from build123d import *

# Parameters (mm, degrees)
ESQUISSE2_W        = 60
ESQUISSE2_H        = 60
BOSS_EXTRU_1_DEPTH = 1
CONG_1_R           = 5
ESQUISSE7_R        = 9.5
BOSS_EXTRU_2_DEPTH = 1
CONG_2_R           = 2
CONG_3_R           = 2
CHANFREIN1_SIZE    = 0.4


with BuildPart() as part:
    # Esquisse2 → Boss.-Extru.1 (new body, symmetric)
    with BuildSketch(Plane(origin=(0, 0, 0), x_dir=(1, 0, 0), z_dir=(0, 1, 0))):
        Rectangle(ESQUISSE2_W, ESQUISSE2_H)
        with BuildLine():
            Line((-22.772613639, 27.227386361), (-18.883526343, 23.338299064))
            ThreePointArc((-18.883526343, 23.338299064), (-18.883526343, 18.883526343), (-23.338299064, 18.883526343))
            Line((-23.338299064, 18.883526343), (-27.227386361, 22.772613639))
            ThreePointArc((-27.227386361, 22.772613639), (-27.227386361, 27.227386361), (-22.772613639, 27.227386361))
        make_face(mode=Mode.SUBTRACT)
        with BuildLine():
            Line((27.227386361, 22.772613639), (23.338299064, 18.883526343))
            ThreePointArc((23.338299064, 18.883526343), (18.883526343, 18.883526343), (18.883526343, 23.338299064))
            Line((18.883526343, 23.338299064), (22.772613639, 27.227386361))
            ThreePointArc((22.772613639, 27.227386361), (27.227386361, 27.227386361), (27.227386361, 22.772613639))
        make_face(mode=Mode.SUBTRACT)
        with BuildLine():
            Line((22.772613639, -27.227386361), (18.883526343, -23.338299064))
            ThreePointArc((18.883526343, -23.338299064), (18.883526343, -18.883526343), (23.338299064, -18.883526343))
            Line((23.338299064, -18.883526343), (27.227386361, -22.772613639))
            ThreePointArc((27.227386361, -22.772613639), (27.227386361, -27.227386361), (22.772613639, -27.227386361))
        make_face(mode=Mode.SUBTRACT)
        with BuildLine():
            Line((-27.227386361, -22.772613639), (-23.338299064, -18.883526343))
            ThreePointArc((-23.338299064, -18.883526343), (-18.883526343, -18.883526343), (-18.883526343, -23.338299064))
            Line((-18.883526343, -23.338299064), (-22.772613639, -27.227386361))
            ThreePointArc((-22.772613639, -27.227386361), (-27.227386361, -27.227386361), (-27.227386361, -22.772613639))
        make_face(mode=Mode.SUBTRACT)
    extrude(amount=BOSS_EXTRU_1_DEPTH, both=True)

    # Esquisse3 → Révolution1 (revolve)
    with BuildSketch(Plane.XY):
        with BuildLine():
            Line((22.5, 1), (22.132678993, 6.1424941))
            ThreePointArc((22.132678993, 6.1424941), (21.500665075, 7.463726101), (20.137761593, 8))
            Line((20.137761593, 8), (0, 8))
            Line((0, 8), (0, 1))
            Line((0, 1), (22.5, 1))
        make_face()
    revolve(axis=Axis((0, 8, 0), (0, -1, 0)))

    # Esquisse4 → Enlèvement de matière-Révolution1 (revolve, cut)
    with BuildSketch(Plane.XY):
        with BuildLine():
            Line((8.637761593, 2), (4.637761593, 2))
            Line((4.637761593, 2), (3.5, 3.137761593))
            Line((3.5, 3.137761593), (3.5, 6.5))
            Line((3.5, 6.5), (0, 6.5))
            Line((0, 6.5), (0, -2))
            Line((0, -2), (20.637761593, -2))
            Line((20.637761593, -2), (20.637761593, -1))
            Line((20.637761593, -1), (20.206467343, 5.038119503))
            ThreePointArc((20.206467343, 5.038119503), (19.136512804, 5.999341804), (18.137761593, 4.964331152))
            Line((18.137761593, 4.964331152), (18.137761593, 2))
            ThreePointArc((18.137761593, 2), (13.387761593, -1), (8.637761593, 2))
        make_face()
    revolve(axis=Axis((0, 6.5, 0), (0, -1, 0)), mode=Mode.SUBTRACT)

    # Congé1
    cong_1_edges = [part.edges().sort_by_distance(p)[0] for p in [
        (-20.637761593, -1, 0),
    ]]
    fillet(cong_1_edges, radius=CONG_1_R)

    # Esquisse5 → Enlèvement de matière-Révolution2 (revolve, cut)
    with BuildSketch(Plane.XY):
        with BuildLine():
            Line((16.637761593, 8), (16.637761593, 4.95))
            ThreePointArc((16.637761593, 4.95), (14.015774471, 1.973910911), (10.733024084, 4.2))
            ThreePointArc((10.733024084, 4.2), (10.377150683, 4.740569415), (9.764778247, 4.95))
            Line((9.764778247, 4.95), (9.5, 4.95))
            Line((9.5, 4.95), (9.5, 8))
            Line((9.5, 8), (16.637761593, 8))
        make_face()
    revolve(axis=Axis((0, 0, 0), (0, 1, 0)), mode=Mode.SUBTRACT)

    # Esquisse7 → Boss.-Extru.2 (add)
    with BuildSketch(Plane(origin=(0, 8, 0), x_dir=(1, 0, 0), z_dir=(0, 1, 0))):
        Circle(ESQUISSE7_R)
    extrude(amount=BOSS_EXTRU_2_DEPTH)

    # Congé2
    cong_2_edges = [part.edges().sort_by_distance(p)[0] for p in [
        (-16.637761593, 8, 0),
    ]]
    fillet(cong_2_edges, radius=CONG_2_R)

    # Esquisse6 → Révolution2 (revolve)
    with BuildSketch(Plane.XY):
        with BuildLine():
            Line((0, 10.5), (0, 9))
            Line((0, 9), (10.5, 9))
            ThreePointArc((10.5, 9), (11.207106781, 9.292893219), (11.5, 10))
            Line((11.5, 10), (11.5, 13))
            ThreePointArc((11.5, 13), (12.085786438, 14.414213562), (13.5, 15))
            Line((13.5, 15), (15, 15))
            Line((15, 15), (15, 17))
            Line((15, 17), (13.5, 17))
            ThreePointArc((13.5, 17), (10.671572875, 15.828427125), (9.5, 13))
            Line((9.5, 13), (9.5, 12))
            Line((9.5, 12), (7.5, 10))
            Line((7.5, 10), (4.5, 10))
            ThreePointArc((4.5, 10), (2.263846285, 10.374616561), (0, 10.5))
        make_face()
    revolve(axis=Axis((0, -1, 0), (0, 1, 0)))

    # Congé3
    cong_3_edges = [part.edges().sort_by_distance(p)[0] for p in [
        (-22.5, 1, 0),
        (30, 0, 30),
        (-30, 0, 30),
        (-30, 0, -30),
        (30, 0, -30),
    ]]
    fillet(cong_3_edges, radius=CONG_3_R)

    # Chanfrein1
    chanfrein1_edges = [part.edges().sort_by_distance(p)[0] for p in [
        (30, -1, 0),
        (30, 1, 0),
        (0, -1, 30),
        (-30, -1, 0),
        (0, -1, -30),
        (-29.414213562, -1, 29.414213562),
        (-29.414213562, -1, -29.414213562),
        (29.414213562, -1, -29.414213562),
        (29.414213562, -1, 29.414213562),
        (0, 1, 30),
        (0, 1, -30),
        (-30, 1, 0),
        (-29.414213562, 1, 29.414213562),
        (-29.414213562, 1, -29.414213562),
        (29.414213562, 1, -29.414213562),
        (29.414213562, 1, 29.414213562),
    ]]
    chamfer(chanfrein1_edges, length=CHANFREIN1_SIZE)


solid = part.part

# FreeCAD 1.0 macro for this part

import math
import FreeCAD as App
import Part
import Sketcher
Q = App.Units.Quantity


def edges_at(feature, points):
    """Names of the edges that pass closest to the given points."""
    edges = feature.Shape.Edges
    near = lambda p: min(range(len(edges)), key=lambda i: edges[i].distToShape(Part.Vertex(*p))[0])
    return sorted({f"Edge{near(p) + 1}" for p in points})


def add_polygon(sketch, points):
    """Adds a closed chain of lines whose ends are joined by coincident constraints."""
    first, n = sketch.GeometryCount, len(points)
    for a, b in zip(points, points[1:] + points[:1]):
        sketch.addGeometry(Part.LineSegment(App.Vector(*a, 0), App.Vector(*b, 0)), False)
    for i in range(n):
        sketch.addConstraint(Sketcher.Constraint("Coincident", first + i, 2, first + (i + 1) % n, 1))

doc = App.newDocument("Part")
body = doc.addObject("PartDesign::Body", "Body")

# Sketch on XZ plane
sketch1 = body.newObject("Sketcher::SketchObject", "Sketch")
sketch1.AttachmentSupport = (doc.getObject("XZ_Plane"), [""])
sketch1.MapMode = "FlatFace"
add_polygon(sketch1, [(-30, -30), (-30, 30), (30, 30), (30, -30)])  # lines 0-3
sketch1.addGeometry(Part.ArcOfCircle(Part.Circle(App.Vector(-25, 25, 0), App.Vector(0, 0, 1), 3.15), math.radians(45), math.radians(225)), False)  # 4
sketch1.addGeometry(Part.LineSegment(App.Vector(-27.227386, 22.772614, 0), App.Vector(-23.338299, 18.883526, 0)), False)  # 5
sketch1.addGeometry(Part.ArcOfCircle(Part.Circle(App.Vector(-21.110913, 21.110913, 0), App.Vector(0, 0, 1), 3.15), math.radians(-135), math.radians(45)), False)  # 6
sketch1.addGeometry(Part.LineSegment(App.Vector(-18.883526, 23.338299, 0), App.Vector(-22.772614, 27.227386, 0)), False)  # 7
sketch1.addGeometry(Part.ArcOfCircle(Part.Circle(App.Vector(25, 25, 0), App.Vector(0, 0, 1), 3.15), math.radians(-45), math.radians(135)), False)  # 8
sketch1.addGeometry(Part.LineSegment(App.Vector(22.772614, 27.227386, 0), App.Vector(18.883526, 23.338299, 0)), False)  # 9
sketch1.addGeometry(Part.ArcOfCircle(Part.Circle(App.Vector(21.110913, 21.110913, 0), App.Vector(0, 0, 1), 3.15), math.radians(135), math.radians(315)), False)  # 10
sketch1.addGeometry(Part.LineSegment(App.Vector(23.338299, 18.883526, 0), App.Vector(27.227386, 22.772614, 0)), False)  # 11
sketch1.addGeometry(Part.ArcOfCircle(Part.Circle(App.Vector(-25, -25, 0), App.Vector(0, 0, 1), 3.15), math.radians(135), math.radians(315)), False)  # 12
sketch1.addGeometry(Part.LineSegment(App.Vector(-22.772614, -27.227386, 0), App.Vector(-18.883526, -23.338299, 0)), False)  # 13
sketch1.addGeometry(Part.ArcOfCircle(Part.Circle(App.Vector(-21.110913, -21.110913, 0), App.Vector(0, 0, 1), 3.15), math.radians(-45), math.radians(135)), False)  # 14
sketch1.addGeometry(Part.LineSegment(App.Vector(-23.338299, -18.883526, 0), App.Vector(-27.227386, -22.772614, 0)), False)  # 15
sketch1.addGeometry(Part.ArcOfCircle(Part.Circle(App.Vector(25, -25, 0), App.Vector(0, 0, 1), 3.15), math.radians(-135), math.radians(45)), False)  # 16
sketch1.addGeometry(Part.LineSegment(App.Vector(27.227386, -22.772614, 0), App.Vector(23.338299, -18.883526, 0)), False)  # 17
sketch1.addGeometry(Part.ArcOfCircle(Part.Circle(App.Vector(21.110913, -21.110913, 0), App.Vector(0, 0, 1), 3.15), math.radians(45), math.radians(225)), False)  # 18
sketch1.addGeometry(Part.LineSegment(App.Vector(18.883526, -23.338299, 0), App.Vector(22.772614, -27.227386, 0)), False)  # 19
sketch1.addConstraint([
    Sketcher.Constraint("Tangent", 4, 2, 5, 1),
    Sketcher.Constraint("Tangent", 5, 2, 6, 1),
    Sketcher.Constraint("Tangent", 6, 2, 7, 1),
    Sketcher.Constraint("Tangent", 7, 2, 4, 1),
    Sketcher.Constraint("Tangent", 8, 2, 9, 1),
    Sketcher.Constraint("Tangent", 9, 2, 10, 1),
    Sketcher.Constraint("Tangent", 10, 2, 11, 1),
    Sketcher.Constraint("Tangent", 11, 2, 8, 1),
    Sketcher.Constraint("Tangent", 12, 2, 13, 1),
    Sketcher.Constraint("Tangent", 13, 2, 14, 1),
    Sketcher.Constraint("Tangent", 14, 2, 15, 1),
    Sketcher.Constraint("Tangent", 15, 2, 12, 1),
    Sketcher.Constraint("Tangent", 16, 2, 17, 1),
    Sketcher.Constraint("Tangent", 17, 2, 18, 1),
    Sketcher.Constraint("Tangent", 18, 2, 19, 1),
    Sketcher.Constraint("Tangent", 19, 2, 16, 1),
    Sketcher.Constraint("Vertical", 0),
    Sketcher.Constraint("Horizontal", 1),
    Sketcher.Constraint("Vertical", 2),
    Sketcher.Constraint("Horizontal", 3),
    Sketcher.Constraint("Equal", 4, 6),
    Sketcher.Constraint("Equal", 6, 8),
    Sketcher.Constraint("Equal", 8, 10),
    Sketcher.Constraint("Equal", 10, 12),
    Sketcher.Constraint("Equal", 12, 14),
    Sketcher.Constraint("Equal", 14, 16),
    Sketcher.Constraint("Equal", 16, 18),
    Sketcher.Constraint("Symmetric", 8, 3, 12, 3, -1, 1),
    Sketcher.Constraint("Symmetric", 10, 3, 14, 3, -1, 1),
    Sketcher.Constraint("Symmetric", 4, 3, 16, 3, -1, 1),
    Sketcher.Constraint("Symmetric", 6, 3, 18, 3, -1, 1),
    Sketcher.Constraint("Symmetric", 0, 2, 2, 2, -1, 1),
    Sketcher.Constraint("Symmetric", 4, 3, 8, 3, -2),
    Sketcher.Constraint("Symmetric", 6, 3, 10, 3, -2),
    Sketcher.Constraint("Perpendicular", 7, 9),
    Sketcher.Constraint("Equal", 3, 0),
    Sketcher.Constraint("DistanceX", 1, 1, 1, 2, Q("60 mm")),
    Sketcher.Constraint("Radius", 4, Q("3.15 mm")),
    Sketcher.Constraint("DistanceX", 4, 3, -1, 1, Q("25 mm")),
    Sketcher.Constraint("DistanceY", -1, 1, 4, 3, Q("25 mm")),
    Sketcher.Constraint("Distance", 5, Q("5.5 mm")),
])
pad1 = body.newObject("PartDesign::Pad", "Pad")
pad1.Profile = sketch1
pad1.Length = 2
pad1.Midplane = True

# Sketch on XY plane
sketch2 = body.newObject("Sketcher::SketchObject", "Sketch001")
sketch2.AttachmentSupport = (doc.getObject("XY_Plane"), [""])
sketch2.MapMode = "FlatFace"
sketch2.addGeometry([
    Part.LineSegment(App.Vector(22.5, 1, 0), App.Vector(22.132679, 6.142494, 0)),  # 0
    Part.ArcOfCircle(Part.Circle(App.Vector(20.137762, 6, 0), App.Vector(0, 0, 1), 2), math.radians(4.085617), math.radians(90)),  # 1
    Part.LineSegment(App.Vector(20.137762, 8, 0), App.Vector(0, 8, 0)),  # 2
    Part.LineSegment(App.Vector(0, 8, 0), App.Vector(0, 1, 0)),  # 3
    Part.LineSegment(App.Vector(0, 1, 0), App.Vector(22.5, 1, 0)),  # 4
], False)
sketch2.addConstraint([
    Sketcher.Constraint("Tangent", 0, 2, 1, 1),
    Sketcher.Constraint("Tangent", 1, 2, 2, 1),
    Sketcher.Constraint("Coincident", 2, 2, 3, 1),
    Sketcher.Constraint("Coincident", 3, 2, 4, 1),
    Sketcher.Constraint("Coincident", 4, 2, 0, 1),
    Sketcher.Constraint("Horizontal", 2),
    Sketcher.Constraint("Vertical", 3),
    Sketcher.Constraint("Horizontal", 4),
    Sketcher.Constraint("PointOnObject", 2, 2, -2),
    Sketcher.Constraint("Radius", 1, Q("2 mm")),
    Sketcher.Constraint("DistanceY", 3, 2, 3, 1, Q("7 mm")),
    Sketcher.Constraint("DistanceX", 4, 1, 4, 2, Q("22.5 mm")),
    Sketcher.Constraint("DistanceY", -1, 1, 1, 3, Q("6 mm")),
    Sketcher.Constraint("DistanceX", 2, 2, 2, 1, Q("20.137762 mm")),
])
revolution = body.newObject("PartDesign::Revolution", "Revolution")
revolution.Profile = sketch2
revolution.ReferenceAxis = (sketch2, ["V_Axis"])
revolution.Angle = 360

# Sketch on XY plane
sketch3 = body.newObject("Sketcher::SketchObject", "Sketch002")
sketch3.AttachmentSupport = (doc.getObject("XY_Plane"), [""])
sketch3.MapMode = "FlatFace"
sketch3.addGeometry([
    Part.LineSegment(App.Vector(8.637762, 2, 0), App.Vector(4.637762, 2, 0)),  # 0
    Part.LineSegment(App.Vector(4.637762, 2, 0), App.Vector(3.5, 3.137762, 0)),  # 1
    Part.LineSegment(App.Vector(3.5, 3.137762, 0), App.Vector(3.5, 6.5, 0)),  # 2
    Part.LineSegment(App.Vector(3.5, 6.5, 0), App.Vector(0, 6.5, 0)),  # 3
    Part.LineSegment(App.Vector(0, 6.5, 0), App.Vector(0, -2, 0)),  # 4
    Part.LineSegment(App.Vector(0, -2, 0), App.Vector(20.637762, -2, 0)),  # 5
    Part.LineSegment(App.Vector(20.637762, -2, 0), App.Vector(20.637762, -1, 0)),  # 6
    Part.LineSegment(App.Vector(20.637762, -1, 0), App.Vector(20.206467, 5.03812, 0)),  # 7
    Part.ArcOfCircle(Part.Circle(App.Vector(19.17343, 4.964331, 0), App.Vector(0, 0, 1), 1.035669), math.radians(4.085617), math.radians(180)),  # 8
    Part.LineSegment(App.Vector(18.137762, 4.964331, 0), App.Vector(18.137762, 2, 0)),  # 9
    Part.ArcOfCircle(Part.Circle(App.Vector(13.387762, 4.260417, 0), App.Vector(0, 0, 1), 5.260417), math.radians(-154.551289), math.radians(-25.448711)),  # 10
], False)
sketch3.addConstraint([
    Sketcher.Constraint("Coincident", 0, 2, 1, 1),
    Sketcher.Constraint("Coincident", 1, 2, 2, 1),
    Sketcher.Constraint("Coincident", 2, 2, 3, 1),
    Sketcher.Constraint("Coincident", 3, 2, 4, 1),
    Sketcher.Constraint("Coincident", 4, 2, 5, 1),
    Sketcher.Constraint("Coincident", 5, 2, 6, 1),
    Sketcher.Constraint("Coincident", 6, 2, 7, 1),
    Sketcher.Constraint("Tangent", 7, 2, 8, 1),
    Sketcher.Constraint("Tangent", 8, 2, 9, 1),
    Sketcher.Constraint("Coincident", 9, 2, 10, 2),
    Sketcher.Constraint("Coincident", 10, 1, 0, 1),
    Sketcher.Constraint("Horizontal", 0),
    Sketcher.Constraint("Vertical", 2),
    Sketcher.Constraint("Horizontal", 3),
    Sketcher.Constraint("Vertical", 4),
    Sketcher.Constraint("Horizontal", 5),
    Sketcher.Constraint("Vertical", 6),
    Sketcher.Constraint("Vertical", 9),
    Sketcher.Constraint("PointOnObject", 3, 2, -2),
    Sketcher.Constraint("Horizontal", 0, 2, 9, 2),
    Sketcher.Constraint("DistanceX", 0, 2, 0, 1, Q("4 mm")),
    Sketcher.Constraint("DistanceY", 6, 1, 6, 2, Q("1 mm")),
    Sketcher.Constraint("Angle", 1, Q("135 deg")),
    Sketcher.Constraint("DistanceX", 3, 2, 3, 1, Q("3.5 mm")),
    Sketcher.Constraint("DistanceY", 4, 2, 4, 1, Q("8.5 mm")),
    Sketcher.Constraint("DistanceY", -1, 1, 0, 2, Q("2 mm")),
    Sketcher.Constraint("DistanceY", 4, 2, -1, 1, Q("2 mm")),
    Sketcher.Constraint("DistanceX", 0, 2, 5, 2, Q("16 mm")),
    Sketcher.Constraint("DistanceX", 8, 2, 6, 2, Q("2.5 mm")),
    Sketcher.Constraint("Radius", 8, Q("1.035669 mm")),
    Sketcher.Constraint("Radius", 10, Q("5.260417 mm")),
    Sketcher.Constraint("DistanceX", 5, 1, 5, 2, Q("20.637762 mm")),
    Sketcher.Constraint("DistanceY", 9, 2, 9, 1, Q("2.964331 mm")),
])
groove = body.newObject("PartDesign::Groove", "Groove")
groove.Profile = sketch3
groove.ReferenceAxis = (sketch3, ["V_Axis"])
groove.Angle = 360
doc.recompute()

fillet = body.newObject("PartDesign::Fillet", "Fillet")
fillet.Base = (groove, edges_at(groove, [(-20.638, -1, 0)]))
fillet.Radius = 5

# Sketch on XY plane
sketch4 = body.newObject("Sketcher::SketchObject", "Sketch003")
sketch4.AttachmentSupport = (doc.getObject("XY_Plane"), [""])
sketch4.MapMode = "FlatFace"
sketch4.addGeometry([
    Part.LineSegment(App.Vector(16.637762, 4.95, 0), App.Vector(16.637762, 8, 0)),  # 0
    Part.LineSegment(App.Vector(16.637762, 8, 0), App.Vector(9.5, 8, 0)),  # 1
    Part.LineSegment(App.Vector(9.5, 8, 0), App.Vector(9.5, 4.95, 0)),  # 2
    Part.LineSegment(App.Vector(9.5, 4.95, 0), App.Vector(9.764778, 4.95, 0)),  # 3
    Part.ArcOfCircle(Part.Circle(App.Vector(9.764778, 3.95, 0), App.Vector(0, 0, 1), 1), math.radians(14.477512), math.radians(90)),  # 4
    Part.ArcOfCircle(Part.Circle(App.Vector(13.637762, 4.95, 0), App.Vector(0, 0, 1), 3), math.radians(-165.522488), math.radians(0)),  # 5
], False)
sketch4.addConstraint([
    Sketcher.Constraint("Coincident", 0, 2, 1, 1),
    Sketcher.Constraint("Coincident", 1, 2, 2, 1),
    Sketcher.Constraint("Coincident", 2, 2, 3, 1),
    Sketcher.Constraint("Tangent", 3, 2, 4, 2),
    Sketcher.Constraint("Tangent", 4, 1, 5, 1),
    Sketcher.Constraint("Tangent", 5, 2, 0, 1),
    Sketcher.Constraint("Vertical", 0),
    Sketcher.Constraint("Horizontal", 1),
    Sketcher.Constraint("Vertical", 2),
    Sketcher.Constraint("Horizontal", 3),
    Sketcher.Constraint("Horizontal", 5, 3, 2, 2),
    Sketcher.Constraint("Radius", 4, Q("1 mm")),
    Sketcher.Constraint("Radius", 5, Q("3 mm")),
    Sketcher.Constraint("DistanceY", -1, 1, 0, 2, Q("8 mm")),
    Sketcher.Constraint("DistanceY", 0, 1, 0, 2, Q("3.05 mm")),
    Sketcher.Constraint("DistanceX", -1, 1, 1, 2, Q("9.5 mm")),
    Sketcher.Constraint("DistanceX", 1, 2, 1, 1, Q("7.137762 mm")),
])
groove2 = body.newObject("PartDesign::Groove", "Groove001")
groove2.Profile = sketch4
groove2.ReferenceAxis = (sketch4, ["V_Axis"])
groove2.Angle = 360

# Sketch on XZ plane
sketch5 = body.newObject("Sketcher::SketchObject", "Sketch004")
sketch5.AttachmentSupport = (doc.getObject("XZ_Plane"), [""])
sketch5.MapMode = "FlatFace"
sketch5.AttachmentOffset = App.Placement(App.Vector(0, 0, -8), App.Rotation())
sketch5.addGeometry(Part.Circle(App.Vector(0, 0, 0), App.Vector(0, 0, 1), 9.5), False)
sketch5.addConstraint([
    Sketcher.Constraint("Coincident", 0, 3, -1, 1),
    Sketcher.Constraint("Diameter", 0, Q("19 mm")),
])
pad2 = body.newObject("PartDesign::Pad", "Pad001")
pad2.Profile = sketch5
pad2.Length = 1
pad2.Reversed = True
doc.recompute()

fillet2 = body.newObject("PartDesign::Fillet", "Fillet001")
fillet2.Base = (pad2, edges_at(pad2, [(-16.638, 8, 0)]))
fillet2.Radius = 2

# Sketch on XY plane
sketch6 = body.newObject("Sketcher::SketchObject", "Sketch005")
sketch6.AttachmentSupport = (doc.getObject("XY_Plane"), [""])
sketch6.MapMode = "FlatFace"
sketch6.addGeometry([
    Part.LineSegment(App.Vector(0, 10.5, 0), App.Vector(0, 9, 0)),  # 0
    Part.LineSegment(App.Vector(0, 9, 0), App.Vector(10.5, 9, 0)),  # 1
    Part.ArcOfCircle(Part.Circle(App.Vector(10.5, 10, 0), App.Vector(0, 0, 1), 1), math.radians(-90), math.radians(0)),  # 2
    Part.LineSegment(App.Vector(11.5, 10, 0), App.Vector(11.5, 13, 0)),  # 3
    Part.ArcOfCircle(Part.Circle(App.Vector(13.5, 13, 0), App.Vector(0, 0, 1), 2), math.radians(90), math.radians(180)),  # 4
    Part.LineSegment(App.Vector(13.5, 15, 0), App.Vector(15, 15, 0)),  # 5
    Part.LineSegment(App.Vector(15, 15, 0), App.Vector(15, 17, 0)),  # 6
    Part.LineSegment(App.Vector(15, 17, 0), App.Vector(13.5, 17, 0)),  # 7
    Part.ArcOfCircle(Part.Circle(App.Vector(13.5, 13, 0), App.Vector(0, 0, 1), 4), math.radians(90), math.radians(180)),  # 8
    Part.LineSegment(App.Vector(9.5, 13, 0), App.Vector(9.5, 12, 0)),  # 9
    Part.LineSegment(App.Vector(9.5, 12, 0), App.Vector(7.5, 10, 0)),  # 10
    Part.LineSegment(App.Vector(7.5, 10, 0), App.Vector(4.5, 10, 0)),  # 11
    Part.ArcOfCircle(Part.Circle(App.Vector(0, -10, 0), App.Vector(0, 0, 1), 20.5), math.radians(77.319616), math.radians(90)),  # 12
], False)
sketch6.addConstraint([
    Sketcher.Constraint("Coincident", 0, 2, 1, 1),
    Sketcher.Constraint("Tangent", 1, 2, 2, 1),
    Sketcher.Constraint("Tangent", 2, 2, 3, 1),
    Sketcher.Constraint("Tangent", 3, 2, 4, 2),
    Sketcher.Constraint("Tangent", 4, 1, 5, 1),
    Sketcher.Constraint("Coincident", 5, 2, 6, 1),
    Sketcher.Constraint("Coincident", 6, 2, 7, 1),
    Sketcher.Constraint("Tangent", 7, 2, 8, 1),
    Sketcher.Constraint("Tangent", 8, 2, 9, 1),
    Sketcher.Constraint("Coincident", 9, 2, 10, 1),
    Sketcher.Constraint("Coincident", 10, 2, 11, 1),
    Sketcher.Constraint("Coincident", 11, 2, 12, 1),
    Sketcher.Constraint("Coincident", 12, 2, 0, 1),
    Sketcher.Constraint("Vertical", 0),
    Sketcher.Constraint("Horizontal", 1),
    Sketcher.Constraint("Vertical", 3),
    Sketcher.Constraint("Horizontal", 5),
    Sketcher.Constraint("Vertical", 6),
    Sketcher.Constraint("Horizontal", 7),
    Sketcher.Constraint("Vertical", 9),
    Sketcher.Constraint("Horizontal", 11),
    Sketcher.Constraint("Coincident", 8, 3, 4, 3),
    Sketcher.Constraint("PointOnObject", 12, 3, -2),
    Sketcher.Constraint("PointOnObject", 0, 2, -2),
    Sketcher.Constraint("Horizontal", 2, 2, 10, 2),
    Sketcher.Constraint("Equal", 7, 0),
    Sketcher.Constraint("Equal", 11, 3),
    Sketcher.Constraint("Radius", 2, Q("1 mm")),
    Sketcher.Constraint("Radius", 4, Q("2 mm")),
    Sketcher.Constraint("Radius", 8, Q("4 mm")),
    Sketcher.Constraint("Radius", 12, Q("20.5 mm")),
    Sketcher.Constraint("DistanceX", 11, 2, 11, 1, Q("3 mm")),
    Sketcher.Constraint("DistanceY", 9, 2, 9, 1, Q("1 mm")),
    Sketcher.Constraint("Angle", 10, Q("-135 deg")),
    Sketcher.Constraint("DistanceX", 1, 1, 1, 2, Q("10.5 mm")),
    Sketcher.Constraint("DistanceY", -1, 1, 2, 3, Q("10 mm")),
])
revolution2 = body.newObject("PartDesign::Revolution", "Revolution001")
revolution2.Profile = sketch6
revolution2.ReferenceAxis = (sketch6, ["V_Axis"])
revolution2.Angle = 360
doc.recompute()

fillet3 = body.newObject("PartDesign::Fillet", "Fillet002")
fillet3.Base = (revolution2, edges_at(revolution2, [
    (-22.5, 1, 0),
    (30, 0, 30),
    (-30, 0, 30),
    (-30, 0, -30),
    (30, 0, -30),
]))
fillet3.Radius = 2
doc.recompute()

chamfer = body.newObject("PartDesign::Chamfer", "Chamfer")
chamfer.Base = (fillet3, edges_at(fillet3, [
    (30, -1, 0),
    (30, 1, 0),
    (0, -1, 30),
    (-30, -1, 0),
    (0, -1, -30),
    (-29.414, -1, 29.414),
    (-29.414, -1, -29.414),
    (29.414, -1, -29.414),
    (29.414, -1, 29.414),
    (0, 1, 30),
    (0, 1, -30),
    (-30, 1, 0),
    (-29.414, 1, 29.414),
    (-29.414, 1, -29.414),
    (29.414, 1, -29.414),
    (29.414, 1, 29.414),
]))
chamfer.Size = 0.4

doc.recompute()
